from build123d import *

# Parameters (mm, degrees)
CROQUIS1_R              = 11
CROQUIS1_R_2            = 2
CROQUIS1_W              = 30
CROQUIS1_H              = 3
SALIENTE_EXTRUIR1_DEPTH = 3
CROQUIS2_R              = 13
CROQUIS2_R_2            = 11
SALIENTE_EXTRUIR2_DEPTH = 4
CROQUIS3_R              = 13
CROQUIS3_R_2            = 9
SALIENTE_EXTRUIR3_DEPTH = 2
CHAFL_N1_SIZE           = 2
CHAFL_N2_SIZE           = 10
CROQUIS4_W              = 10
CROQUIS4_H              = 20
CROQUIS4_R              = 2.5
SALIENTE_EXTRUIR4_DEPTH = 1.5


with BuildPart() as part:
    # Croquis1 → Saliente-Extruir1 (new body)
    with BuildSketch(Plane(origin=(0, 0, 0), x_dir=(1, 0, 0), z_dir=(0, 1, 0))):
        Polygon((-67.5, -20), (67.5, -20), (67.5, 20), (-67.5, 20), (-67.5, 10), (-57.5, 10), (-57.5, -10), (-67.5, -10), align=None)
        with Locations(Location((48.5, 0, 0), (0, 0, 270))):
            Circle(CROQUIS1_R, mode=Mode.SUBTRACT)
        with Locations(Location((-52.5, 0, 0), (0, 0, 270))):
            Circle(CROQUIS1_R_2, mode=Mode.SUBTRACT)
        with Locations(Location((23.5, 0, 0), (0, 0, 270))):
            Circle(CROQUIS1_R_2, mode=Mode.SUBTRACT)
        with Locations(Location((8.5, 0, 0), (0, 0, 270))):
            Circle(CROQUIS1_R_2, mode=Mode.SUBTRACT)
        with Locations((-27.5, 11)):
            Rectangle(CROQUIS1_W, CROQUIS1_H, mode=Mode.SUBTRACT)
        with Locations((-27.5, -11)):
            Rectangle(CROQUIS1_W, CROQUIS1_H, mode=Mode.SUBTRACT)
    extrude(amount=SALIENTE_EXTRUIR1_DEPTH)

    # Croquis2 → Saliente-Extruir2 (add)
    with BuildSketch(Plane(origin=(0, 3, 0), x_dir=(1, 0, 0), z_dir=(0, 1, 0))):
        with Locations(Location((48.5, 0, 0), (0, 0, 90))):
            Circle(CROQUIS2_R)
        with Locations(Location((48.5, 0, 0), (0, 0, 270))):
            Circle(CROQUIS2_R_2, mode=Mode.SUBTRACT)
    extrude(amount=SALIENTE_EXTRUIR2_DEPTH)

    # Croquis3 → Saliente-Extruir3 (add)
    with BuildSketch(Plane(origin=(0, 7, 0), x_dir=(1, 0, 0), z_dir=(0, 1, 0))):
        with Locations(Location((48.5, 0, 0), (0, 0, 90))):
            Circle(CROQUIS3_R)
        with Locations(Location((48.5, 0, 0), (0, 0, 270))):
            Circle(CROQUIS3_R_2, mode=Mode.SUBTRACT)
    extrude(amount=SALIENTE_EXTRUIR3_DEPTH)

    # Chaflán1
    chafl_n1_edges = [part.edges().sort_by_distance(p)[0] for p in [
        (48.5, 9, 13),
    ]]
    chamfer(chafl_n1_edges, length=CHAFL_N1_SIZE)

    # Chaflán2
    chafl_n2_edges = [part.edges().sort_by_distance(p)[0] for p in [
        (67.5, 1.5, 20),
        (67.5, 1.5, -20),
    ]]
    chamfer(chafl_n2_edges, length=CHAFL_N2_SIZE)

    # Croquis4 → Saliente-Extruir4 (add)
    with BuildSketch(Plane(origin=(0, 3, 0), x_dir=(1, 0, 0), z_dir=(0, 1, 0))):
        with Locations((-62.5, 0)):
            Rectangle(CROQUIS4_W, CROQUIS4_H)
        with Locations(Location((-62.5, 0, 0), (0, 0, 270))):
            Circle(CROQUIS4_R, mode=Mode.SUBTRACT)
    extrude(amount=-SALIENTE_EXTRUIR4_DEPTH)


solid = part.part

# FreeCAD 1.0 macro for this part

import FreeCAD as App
import Part
import Sketcher

V = App.Vector
Q = App.Units.Quantity


def edges_at(feature, points):
    """Names of the edges that pass closest to the given points."""
    edges = feature.Shape.Edges
    near = lambda p: min(range(len(edges)), key=lambda i: edges[i].distToShape(Part.Vertex(*p))[0])
    return sorted({f"Edge{near(p) + 1}" for p in points})

doc = App.newDocument("Part")
body = doc.addObject("PartDesign::Body", "Body")

# Sketch on XZ plane
sketch1 = body.newObject("Sketcher::SketchObject", "Sketch")
sketch1.AttachmentSupport = (doc.getObject("XZ_Plane"), [""])
sketch1.MapMode = "FlatFace"
sketch1.addGeometry(Part.LineSegment(V(-67.5, 20, 0), V(67.5, 20, 0)), False)
sketch1.addGeometry(Part.LineSegment(V(67.5, 20, 0), V(67.5, -20, 0)), False)
sketch1.addGeometry(Part.LineSegment(V(67.5, -20, 0), V(-67.5, -20, 0)), False)
sketch1.addGeometry(Part.LineSegment(V(-67.5, -20, 0), V(-67.5, -10, 0)), False)
sketch1.addGeometry(Part.LineSegment(V(-67.5, -10, 0), V(-57.5, -10, 0)), False)
sketch1.addGeometry(Part.LineSegment(V(-57.5, -10, 0), V(-57.5, 10, 0)), False)
sketch1.addGeometry(Part.LineSegment(V(-57.5, 10, 0), V(-67.5, 10, 0)), False)
sketch1.addGeometry(Part.LineSegment(V(-67.5, 10, 0), V(-67.5, 20, 0)), False)
sketch1.addGeometry(Part.LineSegment(V(-12.5, 12.5, 0), V(-42.5, 12.5, 0)), False)
sketch1.addGeometry(Part.LineSegment(V(-42.5, 12.5, 0), V(-42.5, 9.5, 0)), False)
sketch1.addGeometry(Part.LineSegment(V(-42.5, 9.5, 0), V(-12.5, 9.5, 0)), False)
sketch1.addGeometry(Part.LineSegment(V(-12.5, 9.5, 0), V(-12.5, 12.5, 0)), False)
sketch1.addGeometry(Part.Circle(V(-52.5, 0, 0), V(0, 0, 1), 2), False)
sketch1.addGeometry(Part.LineSegment(V(-12.5, -9.5, 0), V(-42.5, -9.5, 0)), False)
sketch1.addGeometry(Part.LineSegment(V(-42.5, -9.5, 0), V(-42.5, -12.5, 0)), False)
sketch1.addGeometry(Part.LineSegment(V(-42.5, -12.5, 0), V(-12.5, -12.5, 0)), False)
sketch1.addGeometry(Part.LineSegment(V(-12.5, -12.5, 0), V(-12.5, -9.5, 0)), False)
sketch1.addGeometry(Part.Circle(V(8.5, 0, 0), V(0, 0, 1), 2), False)
sketch1.addGeometry(Part.Circle(V(23.5, 0, 0), V(0, 0, 1), 2), False)
sketch1.addGeometry(Part.Circle(V(48.5, 0, 0), V(0, 0, 1), 11), False)
sketch1.addConstraint(Sketcher.Constraint("Coincident", 0, 2, 1, 1))
sketch1.addConstraint(Sketcher.Constraint("Coincident", 1, 2, 2, 1))
sketch1.addConstraint(Sketcher.Constraint("Coincident", 2, 2, 3, 1))
sketch1.addConstraint(Sketcher.Constraint("Coincident", 3, 2, 4, 1))
sketch1.addConstraint(Sketcher.Constraint("Coincident", 4, 2, 5, 1))
sketch1.addConstraint(Sketcher.Constraint("Coincident", 5, 2, 6, 1))
sketch1.addConstraint(Sketcher.Constraint("Coincident", 6, 2, 7, 1))
sketch1.addConstraint(Sketcher.Constraint("Coincident", 7, 2, 0, 1))
sketch1.addConstraint(Sketcher.Constraint("Coincident", 8, 2, 9, 1))
sketch1.addConstraint(Sketcher.Constraint("Coincident", 9, 2, 10, 1))
sketch1.addConstraint(Sketcher.Constraint("Coincident", 10, 2, 11, 1))
sketch1.addConstraint(Sketcher.Constraint("Coincident", 11, 2, 8, 1))
sketch1.addConstraint(Sketcher.Constraint("Coincident", 13, 2, 14, 1))
sketch1.addConstraint(Sketcher.Constraint("Coincident", 14, 2, 15, 1))
sketch1.addConstraint(Sketcher.Constraint("Coincident", 15, 2, 16, 1))
sketch1.addConstraint(Sketcher.Constraint("Coincident", 16, 2, 13, 1))
sketch1.addConstraint(Sketcher.Constraint("Horizontal", 0))
sketch1.addConstraint(Sketcher.Constraint("Vertical", 1))
sketch1.addConstraint(Sketcher.Constraint("Horizontal", 2))
sketch1.addConstraint(Sketcher.Constraint("Vertical", 3))
sketch1.addConstraint(Sketcher.Constraint("Horizontal", 4))
sketch1.addConstraint(Sketcher.Constraint("Vertical", 5))
sketch1.addConstraint(Sketcher.Constraint("Horizontal", 6))
sketch1.addConstraint(Sketcher.Constraint("Vertical", 7))
sketch1.addConstraint(Sketcher.Constraint("Horizontal", 8))
sketch1.addConstraint(Sketcher.Constraint("Vertical", 9))
sketch1.addConstraint(Sketcher.Constraint("Horizontal", 10))
sketch1.addConstraint(Sketcher.Constraint("Vertical", 11))
sketch1.addConstraint(Sketcher.Constraint("Horizontal", 13))
sketch1.addConstraint(Sketcher.Constraint("Vertical", 14))
sketch1.addConstraint(Sketcher.Constraint("Horizontal", 15))
sketch1.addConstraint(Sketcher.Constraint("Vertical", 16))
sketch1.addConstraint(Sketcher.Constraint("Equal", 12, 17))
sketch1.addConstraint(Sketcher.Constraint("Equal", 17, 18))
sketch1.addConstraint(Sketcher.Constraint("Symmetric", 0, 2, 2, 2, -1, 1))
sketch1.addConstraint(Sketcher.Constraint("Symmetric", 3, 2, 6, 2, -1))
sketch1.addConstraint(Sketcher.Constraint("Symmetric", 9, 2, 13, 2, -1))
sketch1.addConstraint(Sketcher.Constraint("Symmetric", 11, 2, 15, 2, -1))
sketch1.addConstraint(Sketcher.Constraint("PointOnObject", 12, 3, -1))
sketch1.addConstraint(Sketcher.Constraint("PointOnObject", 17, 3, -1))
sketch1.addConstraint(Sketcher.Constraint("PointOnObject", 18, 3, -1))
sketch1.addConstraint(Sketcher.Constraint("PointOnObject", 19, 3, -1))
sketch1.addConstraint(Sketcher.Constraint("Equal", 6, 3))
sketch1.addConstraint(Sketcher.Constraint("Diameter", 12, Q("4 mm")))
sketch1.addConstraint(Sketcher.Constraint("Diameter", 19, Q("22 mm")))
sketch1.addConstraint(Sketcher.Constraint("DistanceX", 0, 1, 0, 2, Q("135 mm")))
sketch1.addConstraint(Sketcher.Constraint("DistanceX", 4, 1, 4, 2, Q("10 mm")))
sketch1.addConstraint(Sketcher.Constraint("DistanceX", 8, 2, 8, 1, Q("30 mm")))
sketch1.addConstraint(Sketcher.Constraint("DistanceY", 1, 2, 1, 1, Q("40 mm")))
sketch1.addConstraint(Sketcher.Constraint("DistanceY", 9, 2, 9, 1, Q("3 mm")))
sketch1.addConstraint(Sketcher.Constraint("DistanceX", 12, 3, 17, 3, Q("61 mm")))
sketch1.addConstraint(Sketcher.Constraint("DistanceX", 17, 3, 18, 3, Q("15 mm")))
sketch1.addConstraint(Sketcher.Constraint("DistanceX", 18, 3, 19, 3, Q("25 mm")))
sketch1.addConstraint(Sketcher.Constraint("DistanceX", 19, 3, 0, 2, Q("19 mm")))
sketch1.addConstraint(Sketcher.Constraint("DistanceX", 5, 2, 8, 2, Q("15 mm")))
sketch1.addConstraint(Sketcher.Constraint("DistanceY", 13, 2, 9, 2, Q("19 mm")))
pad1 = body.newObject("PartDesign::Pad", "Pad")
pad1.Profile = sketch1
pad1.Length = 3
pad1.Reversed = True

# Sketch on XZ plane
sketch2 = body.newObject("Sketcher::SketchObject", "Sketch001")
sketch2.AttachmentSupport = (doc.getObject("XZ_Plane"), [""])
sketch2.MapMode = "FlatFace"
sketch2.AttachmentOffset = App.Placement(V(0, 0, -3), App.Rotation())
sketch2.addGeometry(Part.Circle(V(48, 0, 0), V(0, 0, 1), 13), False)
sketch2.addGeometry(Part.Circle(V(48, 0, 0), V(0, 0, 1), 11), False)
sketch2.addConstraint(Sketcher.Constraint("Coincident", 1, 3, 0, 3))
sketch2.addConstraint(Sketcher.Constraint("PointOnObject", 0, 3, -1))
sketch2.addConstraint(Sketcher.Constraint("Diameter", 0, Q("26 mm")))
sketch2.addConstraint(Sketcher.Constraint("Diameter", 1, Q("22 mm")))
sketch2.addConstraint(Sketcher.Constraint("DistanceX", -1, 1, 0, 3, Q("48.5 mm")))
pad2 = body.newObject("PartDesign::Pad", "Pad001")
pad2.Profile = sketch2
pad2.Length = 4
pad2.Reversed = True

# Sketch on XZ plane
sketch3 = body.newObject("Sketcher::SketchObject", "Sketch002")
sketch3.AttachmentSupport = (doc.getObject("XZ_Plane"), [""])
sketch3.MapMode = "FlatFace"
sketch3.AttachmentOffset = App.Placement(V(0, 0, -7), App.Rotation())
sketch3.addGeometry(Part.Circle(V(48, 0, 0), V(0, 0, 1), 13), False)
sketch3.addGeometry(Part.Circle(V(48, 0, 0), V(0, 0, 1), 9), False)
sketch3.addConstraint(Sketcher.Constraint("Coincident", 1, 3, 0, 3))
sketch3.addConstraint(Sketcher.Constraint("PointOnObject", 0, 3, -1))
sketch3.addConstraint(Sketcher.Constraint("Diameter", 0, Q("26 mm")))
sketch3.addConstraint(Sketcher.Constraint("Diameter", 1, Q("18 mm")))
sketch3.addConstraint(Sketcher.Constraint("DistanceX", -1, 1, 0, 3, Q("48.5 mm")))
pad3 = body.newObject("PartDesign::Pad", "Pad002")
pad3.Profile = sketch3
pad3.Length = 2
pad3.Reversed = True
doc.recompute()

chamfer = body.newObject("PartDesign::Chamfer", "Chamfer")
chamfer.Base = (pad3, edges_at(pad3, [(48.5, 9, 13)]))
chamfer.Size = 2
doc.recompute()

chamfer2 = body.newObject("PartDesign::Chamfer", "Chamfer001")
chamfer2.Base = (chamfer, edges_at(chamfer, [(67.5, 1.5, 20), (67.5, 1.5, -20)]))
chamfer2.Size = 10

# Sketch on XZ plane
sketch4 = body.newObject("Sketcher::SketchObject", "Sketch003")
sketch4.AttachmentSupport = (doc.getObject("XZ_Plane"), [""])
sketch4.MapMode = "FlatFace"
sketch4.AttachmentOffset = App.Placement(V(0, 0, -3), App.Rotation())
sketch4.addGeometry(Part.LineSegment(V(-67.5, -10, 0), V(-67.5, 10, 0)), False)
sketch4.addGeometry(Part.LineSegment(V(-67.5, 10, 0), V(-57.5, 10, 0)), False)
sketch4.addGeometry(Part.LineSegment(V(-57.5, 10, 0), V(-57.5, -10, 0)), False)
sketch4.addGeometry(Part.LineSegment(V(-57.5, -10, 0), V(-67.5, -10, 0)), False)
sketch4.addGeometry(Part.Circle(V(-62.5, 0, 0), V(0, 0, 1), 2.5), False)
sketch4.addConstraint(Sketcher.Constraint("Coincident", 0, 2, 1, 1))
sketch4.addConstraint(Sketcher.Constraint("Coincident", 1, 2, 2, 1))
sketch4.addConstraint(Sketcher.Constraint("Coincident", 2, 2, 3, 1))
sketch4.addConstraint(Sketcher.Constraint("Coincident", 3, 2, 0, 1))
sketch4.addConstraint(Sketcher.Constraint("Vertical", 0))
sketch4.addConstraint(Sketcher.Constraint("Horizontal", 1))
sketch4.addConstraint(Sketcher.Constraint("Vertical", 2))
sketch4.addConstraint(Sketcher.Constraint("Horizontal", 3))
sketch4.addConstraint(Sketcher.Constraint("PointOnObject", 4, 3, -1))
sketch4.addConstraint(Sketcher.Constraint("Diameter", 4, Q("5 mm")))
sketch4.addConstraint(Sketcher.Constraint("DistanceX", 1, 1, 1, 2, Q("10 mm")))
sketch4.addConstraint(Sketcher.Constraint("DistanceY", 0, 1, 0, 2, Q("20 mm")))
sketch4.addConstraint(Sketcher.Constraint("DistanceY", -1, 1, 0, 2, Q("10 mm")))
sketch4.addConstraint(Sketcher.Constraint("DistanceX", 0, 2, 4, 3, Q("5 mm")))
sketch4.addConstraint(Sketcher.Constraint("DistanceX", 4, 3, -1, 1, Q("62.5 mm")))
pad4 = body.newObject("PartDesign::Pad", "Pad003")
pad4.Profile = sketch4
pad4.Length = 1.5

doc.recompute()
